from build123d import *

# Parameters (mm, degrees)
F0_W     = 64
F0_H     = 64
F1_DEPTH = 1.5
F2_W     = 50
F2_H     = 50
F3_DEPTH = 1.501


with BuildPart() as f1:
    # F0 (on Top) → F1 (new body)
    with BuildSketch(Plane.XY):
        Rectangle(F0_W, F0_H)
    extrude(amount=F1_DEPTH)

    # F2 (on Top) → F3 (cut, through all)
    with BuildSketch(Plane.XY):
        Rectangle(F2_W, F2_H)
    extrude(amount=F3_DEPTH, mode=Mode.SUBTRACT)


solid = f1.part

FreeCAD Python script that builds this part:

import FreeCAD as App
import Part
import Sketcher
from FreeCAD import Vector
Q = App.Units.Quantity

doc = App.newDocument("Part")
body = doc.addObject("PartDesign::Body", "Body")

sketch1 = body.newObject("Sketcher::SketchObject", "Sketch")
sketch1.AttachmentSupport = (doc.getObject("XY_Plane"), [""])
sketch1.MapMode = "FlatFace"
sketch1.addGeometry(Part.LineSegment(Vector(-32, 32, 0), Vector(-32, -32, 0)), False)
sketch1.addGeometry(Part.LineSegment(Vector(-32, -32, 0), Vector(32, -32, 0)), False)
sketch1.addGeometry(Part.LineSegment(Vector(32, -32, 0), Vector(32, 32, 0)), False)
sketch1.addGeometry(Part.LineSegment(Vector(32, 32, 0), Vector(-32, 32, 0)), False)
sketch1.addConstraint(Sketcher.Constraint("Coincident", 0, 2, 1, 1))
sketch1.addConstraint(Sketcher.Constraint("Coincident", 1, 2, 2, 1))
sketch1.addConstraint(Sketcher.Constraint("Coincident", 2, 2, 3, 1))
sketch1.addConstraint(Sketcher.Constraint("Coincident", 3, 2, 0, 1))
sketch1.addConstraint(Sketcher.Constraint("Vertical", 0))
sketch1.addConstraint(Sketcher.Constraint("Horizontal", 1))
sketch1.addConstraint(Sketcher.Constraint("Vertical", 2))
sketch1.addConstraint(Sketcher.Constraint("Horizontal", 3))
sketch1.addConstraint(Sketcher.Constraint("Symmetric", 0, 2, 2, 2, -1, 1))
sketch1.addConstraint(Sketcher.Constraint("Equal", 3, 0))
sketch1.addConstraint(Sketcher.Constraint("DistanceX", 1, 1, 1, 2, Q("64 mm")))
pad1 = body.newObject("PartDesign::Pad", "Pad")
pad1.Profile = sketch1
pad1.Length = 1.5

sketch2 = body.newObject("Sketcher::SketchObject", "Sketch001")
sketch2.AttachmentSupport = (doc.getObject("XY_Plane"), [""])
sketch2.MapMode = "FlatFace"
sketch2.addGeometry(Part.LineSegment(Vector(-25, 25, 0), Vector(-25, -25, 0)), False)
sketch2.addGeometry(Part.LineSegment(Vector(-25, -25, 0), Vector(25, -25, 0)), False)
sketch2.addGeometry(Part.LineSegment(Vector(25, -25, 0), Vector(25, 25, 0)), False)
sketch2.addGeometry(Part.LineSegment(Vector(25, 25, 0), Vector(-25, 25, 0)), False)
sketch2.addConstraint(Sketcher.Constraint("Coincident", 0, 2, 1, 1))
sketch2.addConstraint(Sketcher.Constraint("Coincident", 1, 2, 2, 1))
sketch2.addConstraint(Sketcher.Constraint("Coincident", 2, 2, 3, 1))
sketch2.addConstraint(Sketcher.Constraint("Coincident", 3, 2, 0, 1))
sketch2.addConstraint(Sketcher.Constraint("Vertical", 0))
sketch2.addConstraint(Sketcher.Constraint("Horizontal", 1))
sketch2.addConstraint(Sketcher.Constraint("Vertical", 2))
sketch2.addConstraint(Sketcher.Constraint("Horizontal", 3))
sketch2.addConstraint(Sketcher.Constraint("Symmetric", 0, 2, 2, 2, -1, 1))
sketch2.addConstraint(Sketcher.Constraint("Equal", 3, 0))
sketch2.addConstraint(Sketcher.Constraint("DistanceX", 1, 1, 1, 2, Q("50 mm")))
pocket1 = body.newObject("PartDesign::Pocket", "Pocket")
pocket1.Profile = sketch2
pocket1.Type = "ThroughAll"
pocket1.Reversed = True

doc.recompute()
